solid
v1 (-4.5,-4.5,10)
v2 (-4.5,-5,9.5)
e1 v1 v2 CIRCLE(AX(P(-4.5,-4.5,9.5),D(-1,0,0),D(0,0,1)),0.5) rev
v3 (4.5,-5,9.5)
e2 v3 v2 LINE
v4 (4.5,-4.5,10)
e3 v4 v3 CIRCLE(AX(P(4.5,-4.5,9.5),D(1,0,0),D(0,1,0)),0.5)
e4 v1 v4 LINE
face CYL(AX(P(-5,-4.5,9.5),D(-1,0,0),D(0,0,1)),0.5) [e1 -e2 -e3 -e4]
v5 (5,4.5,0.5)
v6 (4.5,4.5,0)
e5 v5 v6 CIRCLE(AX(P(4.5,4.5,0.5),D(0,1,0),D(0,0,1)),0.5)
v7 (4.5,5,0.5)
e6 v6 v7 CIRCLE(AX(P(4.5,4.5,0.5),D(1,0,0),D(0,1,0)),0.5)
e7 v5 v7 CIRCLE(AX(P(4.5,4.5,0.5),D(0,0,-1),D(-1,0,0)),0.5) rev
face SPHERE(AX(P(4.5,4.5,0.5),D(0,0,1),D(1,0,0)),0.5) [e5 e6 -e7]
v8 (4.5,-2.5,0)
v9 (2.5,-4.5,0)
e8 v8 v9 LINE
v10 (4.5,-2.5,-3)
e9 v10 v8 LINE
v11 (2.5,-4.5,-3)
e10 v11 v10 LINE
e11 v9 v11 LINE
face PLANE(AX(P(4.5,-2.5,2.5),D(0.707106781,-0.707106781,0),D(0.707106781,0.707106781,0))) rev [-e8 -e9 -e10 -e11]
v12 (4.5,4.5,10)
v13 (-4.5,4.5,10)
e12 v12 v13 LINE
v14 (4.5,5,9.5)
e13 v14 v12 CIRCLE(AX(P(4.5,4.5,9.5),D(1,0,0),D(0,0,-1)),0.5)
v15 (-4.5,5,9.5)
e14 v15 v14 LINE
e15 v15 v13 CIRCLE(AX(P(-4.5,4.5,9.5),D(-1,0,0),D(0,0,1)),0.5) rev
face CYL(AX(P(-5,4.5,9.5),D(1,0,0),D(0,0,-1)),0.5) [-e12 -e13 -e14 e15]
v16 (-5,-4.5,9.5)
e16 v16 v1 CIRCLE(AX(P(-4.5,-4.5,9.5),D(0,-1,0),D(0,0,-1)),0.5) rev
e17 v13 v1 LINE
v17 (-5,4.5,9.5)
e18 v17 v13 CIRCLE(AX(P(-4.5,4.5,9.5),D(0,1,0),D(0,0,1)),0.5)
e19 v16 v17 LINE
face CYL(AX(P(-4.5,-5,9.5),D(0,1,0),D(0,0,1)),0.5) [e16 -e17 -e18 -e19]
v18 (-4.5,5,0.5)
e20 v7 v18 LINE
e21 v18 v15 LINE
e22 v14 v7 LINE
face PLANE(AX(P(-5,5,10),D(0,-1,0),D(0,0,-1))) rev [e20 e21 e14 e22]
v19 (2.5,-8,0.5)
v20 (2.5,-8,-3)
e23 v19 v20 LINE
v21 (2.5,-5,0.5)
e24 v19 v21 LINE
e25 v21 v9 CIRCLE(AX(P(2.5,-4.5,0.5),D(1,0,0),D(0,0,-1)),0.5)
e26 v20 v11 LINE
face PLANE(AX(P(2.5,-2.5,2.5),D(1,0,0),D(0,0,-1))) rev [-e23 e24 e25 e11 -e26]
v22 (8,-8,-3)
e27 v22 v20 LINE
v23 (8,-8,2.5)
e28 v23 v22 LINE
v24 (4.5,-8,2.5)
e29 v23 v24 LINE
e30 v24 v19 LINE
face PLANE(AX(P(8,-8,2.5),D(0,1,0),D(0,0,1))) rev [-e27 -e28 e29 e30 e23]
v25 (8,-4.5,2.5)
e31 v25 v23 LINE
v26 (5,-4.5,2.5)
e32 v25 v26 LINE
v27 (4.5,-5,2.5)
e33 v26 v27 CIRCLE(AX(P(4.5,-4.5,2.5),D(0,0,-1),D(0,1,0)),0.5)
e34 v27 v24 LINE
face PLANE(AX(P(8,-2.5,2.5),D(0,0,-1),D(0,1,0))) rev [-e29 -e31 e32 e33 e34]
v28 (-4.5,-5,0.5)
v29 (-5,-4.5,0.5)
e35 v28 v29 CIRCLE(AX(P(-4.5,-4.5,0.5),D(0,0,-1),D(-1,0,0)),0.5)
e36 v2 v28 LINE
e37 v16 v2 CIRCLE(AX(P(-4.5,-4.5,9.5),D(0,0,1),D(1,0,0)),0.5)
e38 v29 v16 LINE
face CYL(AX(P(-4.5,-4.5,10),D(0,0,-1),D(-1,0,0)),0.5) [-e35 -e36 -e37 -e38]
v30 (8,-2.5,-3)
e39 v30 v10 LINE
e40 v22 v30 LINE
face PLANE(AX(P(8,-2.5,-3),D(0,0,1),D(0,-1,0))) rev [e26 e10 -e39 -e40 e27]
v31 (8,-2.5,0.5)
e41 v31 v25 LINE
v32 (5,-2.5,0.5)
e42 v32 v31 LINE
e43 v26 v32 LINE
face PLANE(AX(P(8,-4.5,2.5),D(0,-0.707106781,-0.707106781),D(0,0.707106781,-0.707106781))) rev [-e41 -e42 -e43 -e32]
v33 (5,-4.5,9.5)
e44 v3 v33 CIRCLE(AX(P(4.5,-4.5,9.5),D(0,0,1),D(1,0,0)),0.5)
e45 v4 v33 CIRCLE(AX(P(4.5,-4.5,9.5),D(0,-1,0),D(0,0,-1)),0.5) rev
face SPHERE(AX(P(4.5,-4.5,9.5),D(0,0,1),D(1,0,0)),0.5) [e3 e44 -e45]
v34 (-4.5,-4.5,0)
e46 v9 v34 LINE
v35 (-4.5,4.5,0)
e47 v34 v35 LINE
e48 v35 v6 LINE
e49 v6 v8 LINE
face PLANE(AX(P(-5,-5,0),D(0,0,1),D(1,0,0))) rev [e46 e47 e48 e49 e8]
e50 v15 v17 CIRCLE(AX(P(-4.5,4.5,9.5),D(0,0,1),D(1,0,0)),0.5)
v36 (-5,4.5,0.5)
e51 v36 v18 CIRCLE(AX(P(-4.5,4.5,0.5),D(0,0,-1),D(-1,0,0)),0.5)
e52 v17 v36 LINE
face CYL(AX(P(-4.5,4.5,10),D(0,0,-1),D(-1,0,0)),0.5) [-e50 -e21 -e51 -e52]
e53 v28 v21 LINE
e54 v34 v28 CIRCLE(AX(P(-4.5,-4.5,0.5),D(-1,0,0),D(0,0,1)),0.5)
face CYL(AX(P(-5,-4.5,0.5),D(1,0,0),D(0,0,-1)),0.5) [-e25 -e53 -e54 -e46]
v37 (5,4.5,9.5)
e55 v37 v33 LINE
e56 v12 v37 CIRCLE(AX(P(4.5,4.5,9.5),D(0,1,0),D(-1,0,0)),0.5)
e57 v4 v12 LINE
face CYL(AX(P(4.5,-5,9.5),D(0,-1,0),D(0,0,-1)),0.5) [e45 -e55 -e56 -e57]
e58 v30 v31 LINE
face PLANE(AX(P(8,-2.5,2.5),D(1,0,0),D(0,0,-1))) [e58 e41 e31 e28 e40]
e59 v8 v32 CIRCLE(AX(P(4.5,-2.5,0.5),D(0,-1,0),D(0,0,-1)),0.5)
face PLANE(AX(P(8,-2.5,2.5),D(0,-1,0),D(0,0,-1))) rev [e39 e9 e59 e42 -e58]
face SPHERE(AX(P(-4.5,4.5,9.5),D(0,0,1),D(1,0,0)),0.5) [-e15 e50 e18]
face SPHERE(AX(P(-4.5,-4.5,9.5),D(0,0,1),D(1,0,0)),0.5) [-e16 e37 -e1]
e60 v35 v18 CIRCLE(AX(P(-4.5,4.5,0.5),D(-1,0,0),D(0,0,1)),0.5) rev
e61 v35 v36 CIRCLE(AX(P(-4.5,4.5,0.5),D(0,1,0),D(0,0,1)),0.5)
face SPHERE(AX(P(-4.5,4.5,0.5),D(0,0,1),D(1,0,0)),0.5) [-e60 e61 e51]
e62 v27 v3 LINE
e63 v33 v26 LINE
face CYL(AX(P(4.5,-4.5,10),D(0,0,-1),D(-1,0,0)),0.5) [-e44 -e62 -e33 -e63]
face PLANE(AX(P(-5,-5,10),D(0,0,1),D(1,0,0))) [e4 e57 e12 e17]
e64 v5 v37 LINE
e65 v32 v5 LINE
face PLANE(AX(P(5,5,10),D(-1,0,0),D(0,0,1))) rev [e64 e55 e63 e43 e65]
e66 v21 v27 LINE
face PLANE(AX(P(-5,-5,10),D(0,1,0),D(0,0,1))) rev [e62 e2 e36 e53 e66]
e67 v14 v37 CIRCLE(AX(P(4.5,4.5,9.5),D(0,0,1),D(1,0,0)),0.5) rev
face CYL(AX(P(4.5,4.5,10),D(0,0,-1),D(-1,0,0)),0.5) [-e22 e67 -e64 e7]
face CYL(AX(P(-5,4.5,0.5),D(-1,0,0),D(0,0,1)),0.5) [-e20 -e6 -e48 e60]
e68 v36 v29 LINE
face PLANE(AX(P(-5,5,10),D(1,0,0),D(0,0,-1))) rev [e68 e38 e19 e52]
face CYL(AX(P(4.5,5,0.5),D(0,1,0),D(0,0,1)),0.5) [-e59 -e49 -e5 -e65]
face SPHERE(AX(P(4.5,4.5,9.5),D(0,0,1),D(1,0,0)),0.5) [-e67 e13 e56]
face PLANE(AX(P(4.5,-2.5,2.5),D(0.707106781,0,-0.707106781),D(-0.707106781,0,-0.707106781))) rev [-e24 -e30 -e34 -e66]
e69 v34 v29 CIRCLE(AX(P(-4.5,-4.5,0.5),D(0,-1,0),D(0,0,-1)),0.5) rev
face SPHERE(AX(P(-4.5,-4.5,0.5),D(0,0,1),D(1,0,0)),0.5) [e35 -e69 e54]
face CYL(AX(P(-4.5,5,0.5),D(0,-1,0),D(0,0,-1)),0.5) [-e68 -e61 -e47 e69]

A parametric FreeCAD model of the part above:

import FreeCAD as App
import Part
import Sketcher
Q = App.Units.Quantity


def edges_at(feature, points):
    """Names of the edges that pass closest to the given points."""
    edges = feature.Shape.Edges
    near = lambda p: min(range(len(edges)), key=lambda i: edges[i].distToShape(Part.Vertex(*p))[0])
    return sorted({f"Edge{near(p) + 1}" for p in points})

doc = App.newDocument("Part")
body = doc.addObject("PartDesign::Body", "Body")

sketch1 = body.newObject("Sketcher::SketchObject", "Sketch")
sketch1.AttachmentSupport = (doc.getObject("XY_Plane"), [""])
sketch1.MapMode = "FlatFace"
sketch1.addGeometry(Part.LineSegment(App.Vector(-5, 5, 0), App.Vector(-5, -5, 0)), False)
sketch1.addGeometry(Part.LineSegment(App.Vector(-5, -5, 0), App.Vector(5, -5, 0)), False)
sketch1.addGeometry(Part.LineSegment(App.Vector(5, -5, 0), App.Vector(5, 5, 0)), False)
sketch1.addGeometry(Part.LineSegment(App.Vector(5, 5, 0), App.Vector(-5, 5, 0)), False)
sketch1.addConstraint(Sketcher.Constraint("Coincident", 0, 2, 1, 1))
sketch1.addConstraint(Sketcher.Constraint("Coincident", 1, 2, 2, 1))
sketch1.addConstraint(Sketcher.Constraint("Coincident", 2, 2, 3, 1))
sketch1.addConstraint(Sketcher.Constraint("Coincident", 3, 2, 0, 1))
sketch1.addConstraint(Sketcher.Constraint("Vertical", 0))
sketch1.addConstraint(Sketcher.Constraint("Horizontal", 1))
sketch1.addConstraint(Sketcher.Constraint("Vertical", 2))
sketch1.addConstraint(Sketcher.Constraint("Horizontal", 3))
sketch1.addConstraint(Sketcher.Constraint("Symmetric", 0, 2, 2, 2, -1, 1))
sketch1.addConstraint(Sketcher.Constraint("Equal", 3, 0))
sketch1.addConstraint(Sketcher.Constraint("DistanceX", 1, 1, 1, 2, Q("10 mm")))
pad1 = body.newObject("PartDesign::Pad", "Pad")
pad1.Profile = sketch1
pad1.Length = 10

sketch2 = body.newObject("Sketcher::SketchObject", "Sketch001")
sketch2.AttachmentSupport = (doc.getObject("YZ_Plane"), [""])
sketch2.MapMode = "FlatFace"
sketch2.AttachmentOffset = App.Placement(App.Vector(0, 0, 3), App.Rotation())
sketch2.addGeometry(Part.LineSegment(App.Vector(-2, 2, 0), App.Vector(-8, 2, 0)), False)
sketch2.addGeometry(Part.LineSegment(App.Vector(-8, 2, 0), App.Vector(-8, -3, 0)), False)
sketch2.addGeometry(Part.LineSegment(App.Vector(-8, -3, 0), App.Vector(-2, -3, 0)), False)
sketch2.addGeometry(Part.LineSegment(App.Vector(-2, -3, 0), App.Vector(-2, 2, 0)), False)
sketch2.addConstraint(Sketcher.Constraint("Coincident", 0, 2, 1, 1))
sketch2.addConstraint(Sketcher.Constraint("Coincident", 1, 2, 2, 1))
sketch2.addConstraint(Sketcher.Constraint("Coincident", 2, 2, 3, 1))
sketch2.addConstraint(Sketcher.Constraint("Coincident", 3, 2, 0, 1))
sketch2.addConstraint(Sketcher.Constraint("Horizontal", 0))
sketch2.addConstraint(Sketcher.Constraint("Vertical", 1))
sketch2.addConstraint(Sketcher.Constraint("Horizontal", 2))
sketch2.addConstraint(Sketcher.Constraint("Vertical", 3))
sketch2.addConstraint(Sketcher.Constraint("Equal", 2, 1))
sketch2.addConstraint(Sketcher.Constraint("DistanceX", 0, 2, 0, 1, Q("5.5 mm")))
sketch2.addConstraint(Sketcher.Constraint("DistanceX", 0, 2, -1, 1, Q("8 mm")))
sketch2.addConstraint(Sketcher.Constraint("DistanceY", 1, 2, -1, 1, Q("3 mm")))
pad2 = body.newObject("PartDesign::Pad", "Pad001")
pad2.Profile = sketch2
pad2.Type = "TwoLengths"
pad2.Length = 5
pad2.Length2 = 0.5
doc.recompute()

fillet = body.newObject("PartDesign::Fillet", "Fillet")
fillet.Base = (pad2, edges_at(pad2, [
    (-5, 5, 5),
    (5, 5, 5),
    (0, 5, 0),
    (0, 5, 10),
    (-5, -5, 5),
    (-5, 0, 0),
    (-5, 0, 10),
    (5, 1.25, 0),
    (5, -5, 6.25),
    (5, 0, 10),
    (-1.25, -5, 0),
    (0, -5, 10),
]))
fillet.Radius = 0.5
doc.recompute()

chamfer = body.newObject("PartDesign::Chamfer", "Chamfer")
chamfer.Base = (fillet, edges_at(fillet, [(2.5, -2.5, -1.5), (2.5, -6.5, 2.5), (6.5, -2.5, 2.5)]))
chamfer.Size = 2

doc.recompute()
